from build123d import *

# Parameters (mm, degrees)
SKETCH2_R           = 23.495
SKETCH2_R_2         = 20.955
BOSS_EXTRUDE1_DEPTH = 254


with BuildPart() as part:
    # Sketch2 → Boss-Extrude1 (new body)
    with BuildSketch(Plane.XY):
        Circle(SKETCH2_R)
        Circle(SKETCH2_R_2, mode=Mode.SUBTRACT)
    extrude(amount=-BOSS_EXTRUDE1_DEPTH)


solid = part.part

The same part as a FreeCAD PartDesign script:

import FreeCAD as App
import Part
import Sketcher
from FreeCAD import Vector
Q = App.Units.Quantity

doc = App.newDocument("Part")
body = doc.addObject("PartDesign::Body", "Body")

sketch1 = doc.addObject("Sketcher::SketchObject", "Sketch")
body.addObject(sketch1)
sketch1.AttachmentSupport = (doc.XY_Plane, [""])
sketch1.MapMode = "FlatFace"
sketch1.addGeometry([
    Part.Circle(Vector(0, 0, 0), Vector(0, 0, 1), 23),
    Part.Circle(Vector(0, 0, 0), Vector(0, 0, 1), 21),
], False)
sketch1.addConstraint([
    Sketcher.Constraint("Coincident", 0, 3, -1, 1),
    Sketcher.Constraint("Coincident", 1, 3, -1, 1),
    Sketcher.Constraint("Diameter", 0, Q("1.85 in")),
    Sketcher.Constraint("Diameter", 1, Q("1.65 in")),
])
pad1 = doc.addObject("PartDesign::Pad", "Pad")
body.addObject(pad1)
pad1.Profile = sketch1
pad1.Length = Q("10 in")
pad1.Reversed = True

doc.recompute()
